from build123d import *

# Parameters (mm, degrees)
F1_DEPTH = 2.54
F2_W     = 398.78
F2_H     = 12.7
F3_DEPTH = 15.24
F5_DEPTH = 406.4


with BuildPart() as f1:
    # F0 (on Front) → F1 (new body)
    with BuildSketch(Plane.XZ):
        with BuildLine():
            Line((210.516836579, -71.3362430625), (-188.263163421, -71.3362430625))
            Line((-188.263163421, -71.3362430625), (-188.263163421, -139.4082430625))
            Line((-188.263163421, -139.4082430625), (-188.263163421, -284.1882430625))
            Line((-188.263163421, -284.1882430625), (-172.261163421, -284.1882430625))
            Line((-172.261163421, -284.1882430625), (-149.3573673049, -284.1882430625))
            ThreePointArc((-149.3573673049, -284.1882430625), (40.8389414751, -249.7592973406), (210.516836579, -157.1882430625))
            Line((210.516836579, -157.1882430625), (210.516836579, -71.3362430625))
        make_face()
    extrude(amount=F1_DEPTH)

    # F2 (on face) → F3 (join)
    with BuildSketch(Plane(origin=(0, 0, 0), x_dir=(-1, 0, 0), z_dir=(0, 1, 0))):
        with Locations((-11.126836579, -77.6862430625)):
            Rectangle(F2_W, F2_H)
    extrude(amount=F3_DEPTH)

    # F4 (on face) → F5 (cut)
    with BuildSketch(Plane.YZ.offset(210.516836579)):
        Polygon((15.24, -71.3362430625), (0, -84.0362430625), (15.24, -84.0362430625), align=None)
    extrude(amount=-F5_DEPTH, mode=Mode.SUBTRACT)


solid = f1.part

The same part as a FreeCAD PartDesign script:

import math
import FreeCAD as App
import Part
import Sketcher

V = App.Vector
Q = App.Units.Quantity

doc = App.newDocument("Part")
body = doc.addObject("PartDesign::Body", "Body")

# Sketch on XZ plane
sketch1 = body.newObject("Sketcher::SketchObject", "Sketch")
sketch1.AttachmentSupport = (doc.getObject("XZ_Plane"), [""])
sketch1.MapMode = "FlatFace"
sketch1.addGeometry([
    Part.LineSegment(V(211, -71, 0), V(-188, -71, 0)),  # 0
    Part.LineSegment(V(-188, -71, 0), V(-188, -284, 0)),  # 1
    Part.LineSegment(V(-188, -284, 0), V(-149, -284, 0)),  # 2
    Part.ArcOfCircle(Part.Circle(V(-161, 322, 0), V(0, 0, 1), 606), math.radians(-89), math.radians(-52)),  # 3
    Part.LineSegment(V(211, -157, 0), V(211, -71, 0)),  # 4
], False)
sketch1.addConstraint([
    Sketcher.Constraint("Coincident", 0, 2, 1, 1),
    Sketcher.Constraint("Coincident", 1, 2, 2, 1),
    Sketcher.Constraint("Coincident", 2, 2, 3, 1),
    Sketcher.Constraint("Coincident", 3, 2, 4, 1),
    Sketcher.Constraint("Coincident", 4, 2, 0, 1),
    Sketcher.Constraint("Horizontal", 0),
    Sketcher.Constraint("Vertical", 1),
    Sketcher.Constraint("Horizontal", 2),
    Sketcher.Constraint("Vertical", 4),
    Sketcher.Constraint("DistanceX", 0, 2, 0, 1, Q("15.7 in")),
    Sketcher.Constraint("DistanceY", 1, 2, 1, 1, Q("8.38 in")),
    Sketcher.Constraint("DistanceY", 4, 1, 4, 2, Q("3.38 in")),
    Sketcher.Constraint("Radius", 3, 605.938652),
    Sketcher.Constraint("DistanceX", 0, 2, 3, 3, 27.453898),
    Sketcher.Constraint("DistanceX", 3, 3, -1, 1, 160.809265),
    Sketcher.Constraint("DistanceY", -1, 1, 3, 3, 321.642182),
])
pad1 = body.newObject("PartDesign::Pad", "Pad")
pad1.Profile = sketch1
pad1.Length = Q("0.1 in")

# Sketch on XZ plane
sketch2 = body.newObject("Sketcher::SketchObject", "Sketch001")
sketch2.AttachmentSupport = (doc.getObject("XZ_Plane"), [""])
sketch2.MapMode = "FlatFace"
sketch2.addGeometry([
    Part.LineSegment(V(211, -71, 0), V(211, -84, 0)),
    Part.LineSegment(V(211, -84, 0), V(-188, -84, 0)),
    Part.LineSegment(V(-188, -84, 0), V(-188, -71, 0)),
    Part.LineSegment(V(-188, -71, 0), V(211, -71, 0)),
], False)
sketch2.addConstraint([
    Sketcher.Constraint("Coincident", 0, 2, 1, 1),
    Sketcher.Constraint("Coincident", 1, 2, 2, 1),
    Sketcher.Constraint("Coincident", 2, 2, 3, 1),
    Sketcher.Constraint("Coincident", 3, 2, 0, 1),
    Sketcher.Constraint("Vertical", 0),
    Sketcher.Constraint("Horizontal", 1),
    Sketcher.Constraint("Vertical", 2),
    Sketcher.Constraint("Horizontal", 3),
    Sketcher.Constraint("DistanceX", 1, 2, 1, 1, Q("15.7 in")),
    Sketcher.Constraint("DistanceY", 0, 2, 0, 1, Q("0.5 in")),
    Sketcher.Constraint("DistanceX", -1, 1, 0, 2, 210.516837),
    Sketcher.Constraint("DistanceY", 0, 2, -1, 1, 84.036243),
])
pad2 = body.newObject("PartDesign::Pad", "Pad001")
pad2.Profile = sketch2
pad2.Length = Q("0.6 in")
pad2.Reversed = True

# Sketch on YZ plane
sketch3 = body.newObject("Sketcher::SketchObject", "Sketch002")
sketch3.AttachmentSupport = (doc.getObject("YZ_Plane"), [""])
sketch3.MapMode = "FlatFace"
sketch3.AttachmentOffset = App.Placement(V(0, 0, 210.516837), App.Rotation())
sketch3.addGeometry([
    Part.LineSegment(V(15, -71, 0), V(0, -84, 0)),
    Part.LineSegment(V(0, -84, 0), V(15, -84, 0)),
    Part.LineSegment(V(15, -84, 0), V(15, -71, 0)),
], False)
sketch3.addConstraint([
    Sketcher.Constraint("Coincident", 0, 2, 1, 1),
    Sketcher.Constraint("Coincident", 1, 2, 2, 1),
    Sketcher.Constraint("Coincident", 2, 2, 0, 1),
    Sketcher.Constraint("Horizontal", 1),
    Sketcher.Constraint("Vertical", 2),
    Sketcher.Constraint("PointOnObject", 0, 2, -2),
    Sketcher.Constraint("DistanceX", 1, 1, 1, 2, Q("0.6 in")),
    Sketcher.Constraint("DistanceY", 2, 1, 2, 2, Q("0.5 in")),
    Sketcher.Constraint("DistanceY", 0, 2, -1, 1, 84.036243),
])
pocket1 = body.newObject("PartDesign::Pocket", "Pocket")
pocket1.Profile = sketch3
pocket1.Length = Q("16 in")

doc.recompute()
